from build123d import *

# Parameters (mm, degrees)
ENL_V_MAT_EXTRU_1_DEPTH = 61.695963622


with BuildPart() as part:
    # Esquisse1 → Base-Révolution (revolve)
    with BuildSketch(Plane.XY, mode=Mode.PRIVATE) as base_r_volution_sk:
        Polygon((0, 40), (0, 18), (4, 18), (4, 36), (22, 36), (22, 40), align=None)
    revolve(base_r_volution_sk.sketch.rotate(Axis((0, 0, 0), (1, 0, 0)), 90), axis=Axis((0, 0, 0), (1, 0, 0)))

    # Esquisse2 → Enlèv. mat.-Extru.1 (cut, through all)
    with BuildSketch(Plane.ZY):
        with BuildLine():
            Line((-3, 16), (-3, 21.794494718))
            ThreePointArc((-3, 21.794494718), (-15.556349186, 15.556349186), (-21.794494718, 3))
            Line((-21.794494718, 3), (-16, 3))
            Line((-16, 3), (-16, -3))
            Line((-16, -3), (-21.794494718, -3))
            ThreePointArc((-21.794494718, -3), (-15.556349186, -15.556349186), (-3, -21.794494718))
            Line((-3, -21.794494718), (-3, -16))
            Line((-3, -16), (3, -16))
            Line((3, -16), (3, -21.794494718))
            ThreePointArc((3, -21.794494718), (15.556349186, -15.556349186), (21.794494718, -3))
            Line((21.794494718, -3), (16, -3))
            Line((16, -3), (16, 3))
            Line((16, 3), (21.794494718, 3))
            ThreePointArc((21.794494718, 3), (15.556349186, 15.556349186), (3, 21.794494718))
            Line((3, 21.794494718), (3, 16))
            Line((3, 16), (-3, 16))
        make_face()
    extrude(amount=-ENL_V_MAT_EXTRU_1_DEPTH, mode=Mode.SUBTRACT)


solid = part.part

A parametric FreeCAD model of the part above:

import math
import FreeCAD as App
import Part
import Sketcher


def add_polygon(sketch, points):
    """Adds a closed chain of lines whose ends are joined by coincident constraints."""
    first, n = sketch.GeometryCount, len(points)
    for a, b in zip(points, points[1:] + points[:1]):
        sketch.addGeometry(Part.LineSegment(App.Vector(*a, 0), App.Vector(*b, 0)), False)
    for i in range(n):
        sketch.addConstraint(Sketcher.Constraint("Coincident", first + i, 2, first + (i + 1) % n, 1))

doc = App.newDocument("Part")
params = doc.addObject("Spreadsheet::Sheet", "Params")
for row, (alias, value) in enumerate([
    ("sketch1_width", "4 mm"),
    ("sketch1_width2", "18 mm"),
    ("revolution_angle", "360 deg"),
    ("sketch2_radius", "22 mm"),
    ("sketch2_width", "6 mm"),
], start=1):
    params.set(f"A{row}", alias)
    params.set(f"B{row}", "=" + value)
    params.setAlias(f"B{row}", alias)

body = doc.addObject("PartDesign::Body", "Body")

# Sketch on XY plane
sketch1 = body.newObject("Sketcher::SketchObject", "Sketch")
sketch1.AttachmentSupport = (doc.getObject("XY_Plane"), [""])
sketch1.MapMode = "FlatFace"
add_polygon(sketch1, [(0, 40), (0, 18), (4, 18), (4, 36), (22, 36), (22, 40)])  # lines 0-5
sketch1.addConstraint(Sketcher.Constraint("Vertical", 0))
sketch1.addConstraint(Sketcher.Constraint("Horizontal", 1))
sketch1.addConstraint(Sketcher.Constraint("Vertical", 2))
sketch1.addConstraint(Sketcher.Constraint("Horizontal", 3))
sketch1.addConstraint(Sketcher.Constraint("Vertical", 4))
sketch1.addConstraint(Sketcher.Constraint("Horizontal", 5))
sketch1.addConstraint(Sketcher.Constraint("PointOnObject", 0, 2, -2))
sketch1.addConstraint(Sketcher.Constraint("Equal", 5, 0))
sketch1.addConstraint(Sketcher.Constraint("Equal", 3, 2))
sketch1.addConstraint(Sketcher.Constraint("DistanceX", 1, 1, 1, 2, 4.0))
sketch1.addConstraint(Sketcher.Constraint("DistanceX", 3, 1, 3, 2, 18.0))
sketch1.addConstraint(Sketcher.Constraint("DistanceY", -1, 1, 0, 2, 18.0))
sketch1.setExpression("Constraints[15]", "Params.sketch1_width")
sketch1.setExpression("Constraints[16]", "Params.sketch1_width2")
revolution = body.newObject("PartDesign::Revolution", "Revolution")
revolution.Profile = sketch1
revolution.ReferenceAxis = (sketch1, ["H_Axis"])
revolution.setExpression("Angle", "Params.revolution_angle")

# Sketch on YZ plane
sketch2 = body.newObject("Sketcher::SketchObject", "Sketch001")
sketch2.AttachmentSupport = (doc.getObject("YZ_Plane"), [""])
sketch2.MapMode = "FlatFace"
sketch2.addGeometry(Part.LineSegment(App.Vector(16, -3, 0), App.Vector(21.794495, -3, 0)), False)
sketch2.addGeometry(Part.ArcOfCircle(Part.Circle(App.Vector(0, 0, 0), App.Vector(0, 0, 1), 22), math.radians(-82.16252), math.radians(-7.83748)), False)
sketch2.addGeometry(Part.LineSegment(App.Vector(3, -21.794495, 0), App.Vector(3, -16, 0)), False)
sketch2.addGeometry(Part.LineSegment(App.Vector(3, -16, 0), App.Vector(-3, -16, 0)), False)
sketch2.addGeometry(Part.LineSegment(App.Vector(-3, -16, 0), App.Vector(-3, -21.794495, 0)), False)
sketch2.addGeometry(Part.ArcOfCircle(Part.Circle(App.Vector(0, 0, 0), App.Vector(0, 0, 1), 22), math.radians(-172.16252), math.radians(-97.83748)), False)
sketch2.addGeometry(Part.LineSegment(App.Vector(-21.794495, -3, 0), App.Vector(-16, -3, 0)), False)
sketch2.addGeometry(Part.LineSegment(App.Vector(-16, -3, 0), App.Vector(-16, 3, 0)), False)
sketch2.addGeometry(Part.LineSegment(App.Vector(-16, 3, 0), App.Vector(-21.794495, 3, 0)), False)
sketch2.addGeometry(Part.ArcOfCircle(Part.Circle(App.Vector(0, 0, 0), App.Vector(0, 0, 1), 22), math.radians(97.83748), math.radians(172.16252)), False)
sketch2.addGeometry(Part.LineSegment(App.Vector(-3, 21.794495, 0), App.Vector(-3, 16, 0)), False)
sketch2.addGeometry(Part.LineSegment(App.Vector(-3, 16, 0), App.Vector(3, 16, 0)), False)
sketch2.addGeometry(Part.LineSegment(App.Vector(3, 16, 0), App.Vector(3, 21.794495, 0)), False)
sketch2.addGeometry(Part.ArcOfCircle(Part.Circle(App.Vector(0, 0, 0), App.Vector(0, 0, 1), 22), math.radians(7.83748), math.radians(82.16252)), False)
sketch2.addGeometry(Part.LineSegment(App.Vector(21.794495, 3, 0), App.Vector(16, 3, 0)), False)
sketch2.addGeometry(Part.LineSegment(App.Vector(16, 3, 0), App.Vector(16, -3, 0)), False)
sketch2.addConstraint(Sketcher.Constraint("Coincident", 0, 2, 1, 2))
sketch2.addConstraint(Sketcher.Constraint("Coincident", 1, 1, 2, 1))
sketch2.addConstraint(Sketcher.Constraint("Coincident", 2, 2, 3, 1))
sketch2.addConstraint(Sketcher.Constraint("Coincident", 3, 2, 4, 1))
sketch2.addConstraint(Sketcher.Constraint("Coincident", 4, 2, 5, 2))
sketch2.addConstraint(Sketcher.Constraint("Coincident", 5, 1, 6, 1))
sketch2.addConstraint(Sketcher.Constraint("Coincident", 6, 2, 7, 1))
sketch2.addConstraint(Sketcher.Constraint("Coincident", 7, 2, 8, 1))
sketch2.addConstraint(Sketcher.Constraint("Coincident", 8, 2, 9, 2))
sketch2.addConstraint(Sketcher.Constraint("Coincident", 9, 1, 10, 1))
sketch2.addConstraint(Sketcher.Constraint("Coincident", 10, 2, 11, 1))
sketch2.addConstraint(Sketcher.Constraint("Coincident", 11, 2, 12, 1))
sketch2.addConstraint(Sketcher.Constraint("Coincident", 12, 2, 13, 2))
sketch2.addConstraint(Sketcher.Constraint("Coincident", 13, 1, 14, 1))
sketch2.addConstraint(Sketcher.Constraint("Coincident", 14, 2, 15, 1))
sketch2.addConstraint(Sketcher.Constraint("Coincident", 15, 2, 0, 1))
sketch2.addConstraint(Sketcher.Constraint("Horizontal", 0))
sketch2.addConstraint(Sketcher.Constraint("Vertical", 2))
sketch2.addConstraint(Sketcher.Constraint("Horizontal", 3))
sketch2.addConstraint(Sketcher.Constraint("Vertical", 4))
sketch2.addConstraint(Sketcher.Constraint("Horizontal", 6))
sketch2.addConstraint(Sketcher.Constraint("Vertical", 7))
sketch2.addConstraint(Sketcher.Constraint("Horizontal", 8))
sketch2.addConstraint(Sketcher.Constraint("Vertical", 10))
sketch2.addConstraint(Sketcher.Constraint("Horizontal", 11))
sketch2.addConstraint(Sketcher.Constraint("Vertical", 12))
sketch2.addConstraint(Sketcher.Constraint("Horizontal", 14))
sketch2.addConstraint(Sketcher.Constraint("Vertical", 15))
sketch2.addConstraint(Sketcher.Constraint("Coincident", 1, 3, -1, 1))
sketch2.addConstraint(Sketcher.Constraint("Coincident", 5, 3, -1, 1))
sketch2.addConstraint(Sketcher.Constraint("Coincident", 9, 3, -1, 1))
sketch2.addConstraint(Sketcher.Constraint("Coincident", 13, 3, -1, 1))
sketch2.addConstraint(Sketcher.Constraint("Equal", 1, 5))
sketch2.addConstraint(Sketcher.Constraint("Equal", 5, 9))
sketch2.addConstraint(Sketcher.Constraint("Equal", 9, 13))
sketch2.addConstraint(Sketcher.Constraint("Symmetric", 2, 2, 10, 2, -1, 1))
sketch2.addConstraint(Sketcher.Constraint("Symmetric", 6, 2, 14, 2, -1, 1))
sketch2.addConstraint(Sketcher.Constraint("Horizontal", 1, 1, 4, 2))
sketch2.addConstraint(Sketcher.Constraint("Horizontal", 0, 2, 5, 1))
sketch2.addConstraint(Sketcher.Constraint("Horizontal", 9, 1, 12, 2))
sketch2.addConstraint(Sketcher.Constraint("Horizontal", 8, 2, 13, 1))
sketch2.addConstraint(Sketcher.Constraint("Equal", 14, 2))
sketch2.addConstraint(Sketcher.Constraint("Equal", 11, 7))
sketch2.addConstraint(Sketcher.Constraint("Radius", 1, 22.0))
sketch2.addConstraint(Sketcher.Constraint("DistanceX", 3, 2, 3, 1, 6.0))
sketch2.addConstraint(Sketcher.Constraint("DistanceY", 2, 2, -1, 1, 16.0))
sketch2.setExpression("Constraints[43]", "Params.sketch2_radius")
sketch2.setExpression("Constraints[44]", "Params.sketch2_width")
pocket1 = body.newObject("PartDesign::Pocket", "Pocket")
pocket1.Profile = sketch2
pocket1.Type = "ThroughAll"
pocket1.Reversed = True

doc.recompute()
